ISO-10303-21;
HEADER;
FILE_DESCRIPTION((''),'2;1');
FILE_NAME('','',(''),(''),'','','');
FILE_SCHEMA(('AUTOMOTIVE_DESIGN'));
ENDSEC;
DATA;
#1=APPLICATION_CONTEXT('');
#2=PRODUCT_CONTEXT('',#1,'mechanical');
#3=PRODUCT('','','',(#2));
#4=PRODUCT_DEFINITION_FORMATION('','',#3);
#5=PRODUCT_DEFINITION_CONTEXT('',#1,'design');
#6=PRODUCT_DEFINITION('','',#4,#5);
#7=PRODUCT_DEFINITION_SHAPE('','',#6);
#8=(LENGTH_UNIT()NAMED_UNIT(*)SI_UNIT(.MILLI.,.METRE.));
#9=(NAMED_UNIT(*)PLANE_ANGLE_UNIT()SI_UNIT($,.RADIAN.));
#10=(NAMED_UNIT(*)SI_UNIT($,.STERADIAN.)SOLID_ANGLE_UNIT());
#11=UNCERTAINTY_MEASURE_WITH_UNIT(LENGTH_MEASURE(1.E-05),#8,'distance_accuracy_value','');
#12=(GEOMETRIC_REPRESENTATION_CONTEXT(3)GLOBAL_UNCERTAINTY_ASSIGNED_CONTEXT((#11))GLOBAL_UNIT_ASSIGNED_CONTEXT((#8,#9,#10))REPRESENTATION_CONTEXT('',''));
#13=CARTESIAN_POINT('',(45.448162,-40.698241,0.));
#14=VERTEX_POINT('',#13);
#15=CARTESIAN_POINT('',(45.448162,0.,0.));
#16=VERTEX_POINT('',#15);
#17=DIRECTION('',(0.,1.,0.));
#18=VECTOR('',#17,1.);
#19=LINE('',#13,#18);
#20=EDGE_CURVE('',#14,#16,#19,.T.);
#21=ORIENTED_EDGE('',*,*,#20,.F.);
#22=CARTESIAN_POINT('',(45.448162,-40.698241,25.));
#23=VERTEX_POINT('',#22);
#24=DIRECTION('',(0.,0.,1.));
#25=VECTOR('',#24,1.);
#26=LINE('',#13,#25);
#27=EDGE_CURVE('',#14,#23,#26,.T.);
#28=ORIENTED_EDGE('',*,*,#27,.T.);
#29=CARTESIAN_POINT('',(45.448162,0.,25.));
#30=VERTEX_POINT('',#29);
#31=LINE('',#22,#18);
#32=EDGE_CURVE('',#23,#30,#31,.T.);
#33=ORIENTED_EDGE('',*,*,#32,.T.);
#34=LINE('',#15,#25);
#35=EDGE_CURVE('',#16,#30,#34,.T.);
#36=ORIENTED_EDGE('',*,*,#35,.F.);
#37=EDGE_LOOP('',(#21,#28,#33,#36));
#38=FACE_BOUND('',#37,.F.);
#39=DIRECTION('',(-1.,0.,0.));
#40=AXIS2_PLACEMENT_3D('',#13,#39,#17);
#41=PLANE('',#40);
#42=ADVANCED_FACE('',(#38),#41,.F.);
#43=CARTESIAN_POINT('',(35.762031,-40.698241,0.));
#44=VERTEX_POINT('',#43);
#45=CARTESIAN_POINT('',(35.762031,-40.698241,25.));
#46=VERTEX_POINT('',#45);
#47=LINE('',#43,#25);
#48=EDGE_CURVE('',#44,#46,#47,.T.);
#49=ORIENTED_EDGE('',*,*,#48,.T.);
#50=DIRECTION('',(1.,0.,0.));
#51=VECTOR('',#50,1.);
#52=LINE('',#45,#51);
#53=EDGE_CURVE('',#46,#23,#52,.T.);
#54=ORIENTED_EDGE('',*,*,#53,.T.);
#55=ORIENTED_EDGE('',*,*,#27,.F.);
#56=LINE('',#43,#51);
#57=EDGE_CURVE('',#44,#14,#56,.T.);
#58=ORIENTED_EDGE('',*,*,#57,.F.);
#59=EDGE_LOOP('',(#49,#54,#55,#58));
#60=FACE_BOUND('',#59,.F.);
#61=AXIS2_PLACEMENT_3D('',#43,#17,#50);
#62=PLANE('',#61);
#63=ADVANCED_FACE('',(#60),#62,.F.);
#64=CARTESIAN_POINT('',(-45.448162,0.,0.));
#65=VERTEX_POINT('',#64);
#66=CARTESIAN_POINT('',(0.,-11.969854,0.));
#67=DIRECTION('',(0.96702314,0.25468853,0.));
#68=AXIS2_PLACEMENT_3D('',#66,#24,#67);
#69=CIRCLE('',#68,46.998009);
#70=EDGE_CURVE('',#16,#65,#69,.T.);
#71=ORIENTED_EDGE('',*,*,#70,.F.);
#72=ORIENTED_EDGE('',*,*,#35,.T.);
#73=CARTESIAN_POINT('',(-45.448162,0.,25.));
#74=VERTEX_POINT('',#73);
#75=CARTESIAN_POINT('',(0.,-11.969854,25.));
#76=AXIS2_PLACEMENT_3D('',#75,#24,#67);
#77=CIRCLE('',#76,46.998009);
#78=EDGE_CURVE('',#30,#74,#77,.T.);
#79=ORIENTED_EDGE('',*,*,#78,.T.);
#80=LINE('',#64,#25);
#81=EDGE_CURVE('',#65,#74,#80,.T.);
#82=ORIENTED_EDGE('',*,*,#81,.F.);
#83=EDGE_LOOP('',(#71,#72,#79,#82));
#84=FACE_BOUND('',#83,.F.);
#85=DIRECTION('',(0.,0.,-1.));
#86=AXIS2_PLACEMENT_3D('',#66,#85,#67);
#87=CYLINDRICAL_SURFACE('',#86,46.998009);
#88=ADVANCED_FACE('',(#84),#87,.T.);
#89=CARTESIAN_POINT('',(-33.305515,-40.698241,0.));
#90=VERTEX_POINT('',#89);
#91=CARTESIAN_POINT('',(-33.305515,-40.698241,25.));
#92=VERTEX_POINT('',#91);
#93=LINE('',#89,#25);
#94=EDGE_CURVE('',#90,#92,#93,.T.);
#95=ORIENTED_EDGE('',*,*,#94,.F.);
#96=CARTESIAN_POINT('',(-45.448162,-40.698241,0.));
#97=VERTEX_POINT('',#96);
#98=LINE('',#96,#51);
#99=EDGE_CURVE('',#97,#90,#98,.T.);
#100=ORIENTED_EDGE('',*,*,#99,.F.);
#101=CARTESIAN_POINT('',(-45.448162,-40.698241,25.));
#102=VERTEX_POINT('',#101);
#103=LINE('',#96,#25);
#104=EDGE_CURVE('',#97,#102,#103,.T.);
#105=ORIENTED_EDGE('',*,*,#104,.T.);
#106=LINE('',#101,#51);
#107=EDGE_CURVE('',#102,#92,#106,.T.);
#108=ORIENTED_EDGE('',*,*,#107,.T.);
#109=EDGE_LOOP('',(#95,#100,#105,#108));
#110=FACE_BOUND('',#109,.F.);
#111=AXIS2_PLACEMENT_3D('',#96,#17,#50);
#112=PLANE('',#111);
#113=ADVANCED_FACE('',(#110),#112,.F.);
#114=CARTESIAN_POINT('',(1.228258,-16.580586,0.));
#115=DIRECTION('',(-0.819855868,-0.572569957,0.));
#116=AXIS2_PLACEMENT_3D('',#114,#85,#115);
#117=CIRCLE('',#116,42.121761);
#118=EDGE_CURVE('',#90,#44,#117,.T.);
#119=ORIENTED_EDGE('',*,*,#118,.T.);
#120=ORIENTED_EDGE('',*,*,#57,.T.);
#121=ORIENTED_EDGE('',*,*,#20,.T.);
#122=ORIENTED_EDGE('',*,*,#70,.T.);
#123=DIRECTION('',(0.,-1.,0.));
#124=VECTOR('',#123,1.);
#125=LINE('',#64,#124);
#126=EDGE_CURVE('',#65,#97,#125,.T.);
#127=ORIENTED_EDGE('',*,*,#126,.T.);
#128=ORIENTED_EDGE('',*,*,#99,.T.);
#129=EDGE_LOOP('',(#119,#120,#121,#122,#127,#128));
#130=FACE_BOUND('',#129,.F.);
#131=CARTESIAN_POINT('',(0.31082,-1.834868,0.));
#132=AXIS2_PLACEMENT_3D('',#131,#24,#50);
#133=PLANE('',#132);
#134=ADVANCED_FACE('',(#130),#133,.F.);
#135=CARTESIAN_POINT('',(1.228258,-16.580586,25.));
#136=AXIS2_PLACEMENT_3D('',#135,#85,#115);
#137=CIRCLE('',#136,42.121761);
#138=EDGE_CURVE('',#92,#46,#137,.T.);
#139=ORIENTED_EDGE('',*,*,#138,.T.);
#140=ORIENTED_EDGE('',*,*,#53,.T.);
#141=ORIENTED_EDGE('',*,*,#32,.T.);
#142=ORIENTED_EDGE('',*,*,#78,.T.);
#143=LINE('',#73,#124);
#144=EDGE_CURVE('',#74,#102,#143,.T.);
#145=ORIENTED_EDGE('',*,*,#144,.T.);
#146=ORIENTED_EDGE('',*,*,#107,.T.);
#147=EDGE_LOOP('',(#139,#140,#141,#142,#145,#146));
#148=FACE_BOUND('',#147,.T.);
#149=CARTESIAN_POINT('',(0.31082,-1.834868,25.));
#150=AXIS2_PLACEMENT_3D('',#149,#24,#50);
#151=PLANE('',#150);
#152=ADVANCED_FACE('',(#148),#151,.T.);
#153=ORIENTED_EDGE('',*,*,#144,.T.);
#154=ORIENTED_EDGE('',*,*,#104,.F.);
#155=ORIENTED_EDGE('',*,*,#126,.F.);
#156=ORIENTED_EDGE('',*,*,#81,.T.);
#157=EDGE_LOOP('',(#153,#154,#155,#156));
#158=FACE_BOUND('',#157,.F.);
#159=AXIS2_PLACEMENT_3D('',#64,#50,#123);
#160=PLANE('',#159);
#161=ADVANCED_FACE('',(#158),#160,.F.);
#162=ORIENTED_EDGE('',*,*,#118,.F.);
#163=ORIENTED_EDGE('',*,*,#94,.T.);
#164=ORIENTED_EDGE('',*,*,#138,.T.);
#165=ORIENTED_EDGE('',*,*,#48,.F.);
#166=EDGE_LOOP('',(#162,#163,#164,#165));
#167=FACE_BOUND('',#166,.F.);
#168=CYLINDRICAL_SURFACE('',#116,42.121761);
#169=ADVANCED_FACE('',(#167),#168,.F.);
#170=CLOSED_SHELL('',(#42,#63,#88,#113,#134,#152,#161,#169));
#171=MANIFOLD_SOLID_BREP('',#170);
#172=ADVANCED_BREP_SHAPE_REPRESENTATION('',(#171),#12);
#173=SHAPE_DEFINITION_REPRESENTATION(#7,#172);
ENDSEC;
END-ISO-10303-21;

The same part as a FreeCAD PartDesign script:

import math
import FreeCAD as App
import Part
import Sketcher
from FreeCAD import Vector
Q = App.Units.Quantity

doc = App.newDocument("Part")
body = doc.addObject("PartDesign::Body", "Body")

# Sketch on XY plane
sketch1 = body.newObject("Sketcher::SketchObject", "Sketch")
sketch1.AttachmentSupport = (doc.getObject("XY_Plane"), [""])
sketch1.MapMode = "FlatFace"
sketch1.addGeometry(Part.LineSegment(Vector(36, -41, 0), Vector(45, -41, 0)), False)
sketch1.addGeometry(Part.LineSegment(Vector(45, -41, 0), Vector(45, 0, 0)), False)
sketch1.addGeometry(Part.ArcOfCircle(Part.Circle(Vector(0, -12, 0), Vector(0, 0, 1), 47), math.radians(15), math.radians(165)), False)
sketch1.addGeometry(Part.LineSegment(Vector(-45, 0, 0), Vector(-45, -41, 0)), False)
sketch1.addGeometry(Part.LineSegment(Vector(-45, -41, 0), Vector(-33, -41, 0)), False)
sketch1.addGeometry(Part.ArcOfCircle(Part.Circle(Vector(1, -17, 0), Vector(0, 0, 1), 42), math.radians(-35), math.radians(215)), False)
sketch1.addConstraint(Sketcher.Constraint("Coincident", 0, 2, 1, 1))
sketch1.addConstraint(Sketcher.Constraint("Coincident", 1, 2, 2, 1))
sketch1.addConstraint(Sketcher.Constraint("Coincident", 2, 2, 3, 1))
sketch1.addConstraint(Sketcher.Constraint("Coincident", 3, 2, 4, 1))
sketch1.addConstraint(Sketcher.Constraint("Coincident", 4, 2, 5, 2))
sketch1.addConstraint(Sketcher.Constraint("Coincident", 5, 1, 0, 1))
sketch1.addConstraint(Sketcher.Constraint("Horizontal", 0))
sketch1.addConstraint(Sketcher.Constraint("Vertical", 1))
sketch1.addConstraint(Sketcher.Constraint("Vertical", 3))
sketch1.addConstraint(Sketcher.Constraint("Horizontal", 4))
sketch1.addConstraint(Sketcher.Constraint("Symmetric", 1, 2, 2, 2, -1, 1))
sketch1.addConstraint(Sketcher.Constraint("PointOnObject", 2, 3, -2))
sketch1.addConstraint(Sketcher.Constraint("Horizontal", 0, 2, 3, 2))
sketch1.addConstraint(Sketcher.Constraint("Radius", 2, Q("46.998009 mm")))
sketch1.addConstraint(Sketcher.Constraint("Radius", 5, Q("42.121761 mm")))
sketch1.addConstraint(Sketcher.Constraint("DistanceX", 0, 1, 0, 2, Q("9.686131 mm")))
sketch1.addConstraint(Sketcher.Constraint("DistanceY", 1, 1, 1, 2, Q("40.698241 mm")))
sketch1.addConstraint(Sketcher.Constraint("DistanceX", 4, 1, 4, 2, Q("12.142647 mm")))
sketch1.addConstraint(Sketcher.Constraint("DistanceX", -1, 1, 5, 1, Q("35.762031 mm")))
pad1 = body.newObject("PartDesign::Pad", "Pad")
pad1.Profile = sketch1
pad1.Length = 25

doc.recompute()
